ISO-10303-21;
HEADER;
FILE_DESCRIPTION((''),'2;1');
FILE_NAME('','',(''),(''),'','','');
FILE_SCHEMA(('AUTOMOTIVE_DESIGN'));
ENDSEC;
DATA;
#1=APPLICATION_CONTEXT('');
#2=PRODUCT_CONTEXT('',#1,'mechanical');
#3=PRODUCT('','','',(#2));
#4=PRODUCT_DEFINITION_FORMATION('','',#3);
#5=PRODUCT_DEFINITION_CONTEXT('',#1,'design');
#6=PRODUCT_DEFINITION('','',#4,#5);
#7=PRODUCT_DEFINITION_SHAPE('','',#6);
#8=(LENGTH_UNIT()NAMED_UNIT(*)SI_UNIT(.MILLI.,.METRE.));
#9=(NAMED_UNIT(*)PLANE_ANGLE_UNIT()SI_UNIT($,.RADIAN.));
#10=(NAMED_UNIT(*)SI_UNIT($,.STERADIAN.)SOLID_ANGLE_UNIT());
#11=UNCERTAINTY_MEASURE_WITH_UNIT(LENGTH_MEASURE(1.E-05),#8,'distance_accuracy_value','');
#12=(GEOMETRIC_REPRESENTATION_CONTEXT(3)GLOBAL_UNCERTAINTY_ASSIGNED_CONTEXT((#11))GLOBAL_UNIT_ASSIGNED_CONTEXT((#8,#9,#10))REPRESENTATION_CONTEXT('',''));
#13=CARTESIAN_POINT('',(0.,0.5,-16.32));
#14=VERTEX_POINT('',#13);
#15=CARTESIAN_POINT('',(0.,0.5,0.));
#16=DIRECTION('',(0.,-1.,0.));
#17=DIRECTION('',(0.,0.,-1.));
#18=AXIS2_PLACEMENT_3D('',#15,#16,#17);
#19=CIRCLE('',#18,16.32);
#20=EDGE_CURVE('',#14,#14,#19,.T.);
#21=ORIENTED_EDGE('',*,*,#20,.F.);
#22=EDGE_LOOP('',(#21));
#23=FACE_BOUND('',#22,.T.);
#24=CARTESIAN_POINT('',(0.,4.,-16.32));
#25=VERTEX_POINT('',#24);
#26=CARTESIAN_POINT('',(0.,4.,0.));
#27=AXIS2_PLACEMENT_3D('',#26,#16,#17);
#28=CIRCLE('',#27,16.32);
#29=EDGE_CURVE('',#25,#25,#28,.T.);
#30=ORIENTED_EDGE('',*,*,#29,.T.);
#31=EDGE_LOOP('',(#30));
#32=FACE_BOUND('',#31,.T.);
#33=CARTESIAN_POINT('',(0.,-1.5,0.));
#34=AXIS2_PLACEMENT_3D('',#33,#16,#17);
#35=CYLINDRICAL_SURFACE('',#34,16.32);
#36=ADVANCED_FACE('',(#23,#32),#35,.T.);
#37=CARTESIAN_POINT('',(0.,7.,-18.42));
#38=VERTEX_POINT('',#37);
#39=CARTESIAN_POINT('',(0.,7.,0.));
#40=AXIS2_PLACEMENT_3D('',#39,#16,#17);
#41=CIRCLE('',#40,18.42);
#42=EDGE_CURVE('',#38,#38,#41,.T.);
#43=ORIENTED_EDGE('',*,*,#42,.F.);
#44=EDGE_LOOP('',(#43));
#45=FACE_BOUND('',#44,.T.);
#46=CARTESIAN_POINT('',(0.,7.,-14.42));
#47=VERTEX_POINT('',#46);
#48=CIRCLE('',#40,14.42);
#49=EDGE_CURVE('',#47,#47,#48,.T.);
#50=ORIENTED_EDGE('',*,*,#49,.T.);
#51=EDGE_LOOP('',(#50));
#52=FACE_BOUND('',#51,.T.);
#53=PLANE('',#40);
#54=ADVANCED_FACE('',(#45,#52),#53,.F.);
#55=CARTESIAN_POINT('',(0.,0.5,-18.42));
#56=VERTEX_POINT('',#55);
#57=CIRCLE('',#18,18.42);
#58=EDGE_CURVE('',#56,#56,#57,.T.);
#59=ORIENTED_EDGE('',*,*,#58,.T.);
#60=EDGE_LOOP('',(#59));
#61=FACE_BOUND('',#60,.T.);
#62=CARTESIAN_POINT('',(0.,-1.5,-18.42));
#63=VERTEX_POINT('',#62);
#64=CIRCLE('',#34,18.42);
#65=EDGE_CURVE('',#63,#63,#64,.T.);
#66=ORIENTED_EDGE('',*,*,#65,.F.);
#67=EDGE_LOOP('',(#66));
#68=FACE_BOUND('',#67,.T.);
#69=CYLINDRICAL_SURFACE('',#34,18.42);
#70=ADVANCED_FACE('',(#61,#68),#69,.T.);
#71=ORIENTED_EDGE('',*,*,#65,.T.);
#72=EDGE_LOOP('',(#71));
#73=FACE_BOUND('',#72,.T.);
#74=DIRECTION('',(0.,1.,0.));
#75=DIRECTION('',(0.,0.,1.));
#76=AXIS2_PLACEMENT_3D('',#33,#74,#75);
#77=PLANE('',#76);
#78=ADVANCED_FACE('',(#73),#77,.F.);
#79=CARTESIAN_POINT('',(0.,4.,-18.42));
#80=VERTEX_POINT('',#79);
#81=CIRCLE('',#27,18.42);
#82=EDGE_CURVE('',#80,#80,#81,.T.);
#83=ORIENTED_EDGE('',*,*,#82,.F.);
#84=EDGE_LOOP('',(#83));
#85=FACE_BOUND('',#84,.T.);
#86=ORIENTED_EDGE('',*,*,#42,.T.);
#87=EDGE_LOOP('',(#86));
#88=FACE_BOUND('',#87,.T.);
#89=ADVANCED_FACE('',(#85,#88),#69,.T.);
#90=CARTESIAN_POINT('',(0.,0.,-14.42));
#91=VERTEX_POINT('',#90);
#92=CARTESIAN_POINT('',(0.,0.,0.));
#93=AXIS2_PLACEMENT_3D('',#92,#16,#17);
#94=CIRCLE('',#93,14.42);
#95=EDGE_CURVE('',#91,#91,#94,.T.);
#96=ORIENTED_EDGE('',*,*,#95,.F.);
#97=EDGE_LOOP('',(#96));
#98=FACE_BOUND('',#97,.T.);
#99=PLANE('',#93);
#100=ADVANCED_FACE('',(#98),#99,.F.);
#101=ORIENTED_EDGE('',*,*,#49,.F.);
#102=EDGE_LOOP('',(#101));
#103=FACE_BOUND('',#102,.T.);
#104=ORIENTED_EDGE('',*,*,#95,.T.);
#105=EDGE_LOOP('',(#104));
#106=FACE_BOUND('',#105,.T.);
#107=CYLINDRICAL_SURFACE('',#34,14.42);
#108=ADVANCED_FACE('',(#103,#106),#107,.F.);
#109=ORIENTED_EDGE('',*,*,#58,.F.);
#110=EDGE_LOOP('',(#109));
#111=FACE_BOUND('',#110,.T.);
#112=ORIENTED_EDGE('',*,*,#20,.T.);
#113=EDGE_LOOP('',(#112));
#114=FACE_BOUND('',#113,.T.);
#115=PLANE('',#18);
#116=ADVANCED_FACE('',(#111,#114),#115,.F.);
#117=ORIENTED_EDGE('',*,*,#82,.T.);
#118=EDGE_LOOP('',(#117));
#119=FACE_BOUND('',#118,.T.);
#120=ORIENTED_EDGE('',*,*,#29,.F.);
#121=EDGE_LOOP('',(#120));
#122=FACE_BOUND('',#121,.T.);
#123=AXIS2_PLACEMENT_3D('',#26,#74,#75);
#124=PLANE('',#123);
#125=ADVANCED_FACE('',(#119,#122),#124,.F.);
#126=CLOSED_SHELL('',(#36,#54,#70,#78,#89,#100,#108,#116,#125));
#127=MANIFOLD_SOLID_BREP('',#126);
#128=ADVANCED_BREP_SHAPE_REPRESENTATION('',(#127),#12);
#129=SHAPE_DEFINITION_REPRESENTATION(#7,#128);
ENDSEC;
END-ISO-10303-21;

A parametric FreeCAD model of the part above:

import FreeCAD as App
import Part
import Sketcher
from FreeCAD import Vector

doc = App.newDocument("Part")
body = doc.addObject("PartDesign::Body", "Body")

sketch1 = doc.addObject("Sketcher::SketchObject", "Sketch")
body.addObject(sketch1)
sketch1.AttachmentSupport = (doc.XY_Plane, [""])
sketch1.MapMode = "FlatFace"
sketch1.addGeometry([
    Part.LineSegment(Vector(0, -1.5, 0), Vector(0, 0, 0)),
    Part.LineSegment(Vector(0, 0, 0), Vector(-14.4, 0, 0)),
    Part.LineSegment(Vector(-14.4, 0, 0), Vector(-14.4, 7, 0)),
    Part.LineSegment(Vector(-14.4, 7, 0), Vector(-18.4, 7, 0)),
    Part.LineSegment(Vector(-18.4, 7, 0), Vector(-18.4, 4, 0)),
    Part.LineSegment(Vector(-18.4, 4, 0), Vector(-16.3, 4, 0)),
    Part.LineSegment(Vector(-16.3, 4, 0), Vector(-16.3, 0.5, 0)),
    Part.LineSegment(Vector(-16.3, 0.5, 0), Vector(-18.4, 0.5, 0)),
    Part.LineSegment(Vector(-18.4, 0.5, 0), Vector(-18.4, -1.5, 0)),
    Part.LineSegment(Vector(-18.4, -1.5, 0), Vector(0, -1.5, 0)),
], False)
sketch1.addConstraint([
    Sketcher.Constraint("Coincident", 0, 2, 1, 1),
    Sketcher.Constraint("Coincident", 1, 2, 2, 1),
    Sketcher.Constraint("Coincident", 2, 2, 3, 1),
    Sketcher.Constraint("Coincident", 3, 2, 4, 1),
    Sketcher.Constraint("Coincident", 4, 2, 5, 1),
    Sketcher.Constraint("Coincident", 5, 2, 6, 1),
    Sketcher.Constraint("Coincident", 6, 2, 7, 1),
    Sketcher.Constraint("Coincident", 7, 2, 8, 1),
    Sketcher.Constraint("Coincident", 8, 2, 9, 1),
    Sketcher.Constraint("Coincident", 9, 2, 0, 1),
    Sketcher.Constraint("Vertical", 0),
    Sketcher.Constraint("Horizontal", 1),
    Sketcher.Constraint("Vertical", 2),
    Sketcher.Constraint("Horizontal", 3),
    Sketcher.Constraint("Vertical", 4),
    Sketcher.Constraint("Horizontal", 5),
    Sketcher.Constraint("Vertical", 6),
    Sketcher.Constraint("Horizontal", 7),
    Sketcher.Constraint("Vertical", 8),
    Sketcher.Constraint("Horizontal", 9),
    Sketcher.Constraint("Coincident", 0, 2, -1, 1),
    Sketcher.Constraint("Vertical", 4, 2, 7, 2),
    Sketcher.Constraint("DistanceX", 3, 2, 3, 1, 4.0),
    Sketcher.Constraint("DistanceY", 2, 1, 2, 2, 7.0),
    Sketcher.Constraint("DistanceY", 4, 2, 4, 1, 3.0),
    Sketcher.Constraint("DistanceY", 8, 2, 8, 1, 2.0),
    Sketcher.Constraint("DistanceX", 5, 1, 5, 2, 2.1),
    Sketcher.Constraint("DistanceY", 0, 1, 0, 2, 1.5),
    Sketcher.Constraint("DistanceX", 1, 2, 1, 1, 14.42),
])
revolution = doc.addObject("PartDesign::Revolution", "Revolution")
body.addObject(revolution)
revolution.Profile = sketch1
revolution.ReferenceAxis = (sketch1, ["V_Axis"])
revolution.Angle = 360

doc.recompute()
